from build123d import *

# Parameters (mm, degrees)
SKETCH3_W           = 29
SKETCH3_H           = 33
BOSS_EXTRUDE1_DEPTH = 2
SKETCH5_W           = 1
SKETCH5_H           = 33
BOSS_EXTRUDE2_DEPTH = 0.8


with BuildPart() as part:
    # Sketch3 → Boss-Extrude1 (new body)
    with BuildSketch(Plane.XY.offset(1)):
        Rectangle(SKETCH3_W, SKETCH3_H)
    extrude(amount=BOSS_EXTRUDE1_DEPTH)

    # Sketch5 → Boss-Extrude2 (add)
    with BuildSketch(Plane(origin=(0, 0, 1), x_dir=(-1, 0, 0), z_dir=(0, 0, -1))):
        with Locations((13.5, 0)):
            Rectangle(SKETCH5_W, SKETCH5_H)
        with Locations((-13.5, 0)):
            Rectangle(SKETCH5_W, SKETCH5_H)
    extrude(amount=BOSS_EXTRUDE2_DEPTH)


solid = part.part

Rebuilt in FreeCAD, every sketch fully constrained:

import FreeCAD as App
import Part
import Sketcher
from FreeCAD import Vector
Q = App.Units.Quantity

doc = App.newDocument("Part")
body = doc.addObject("PartDesign::Body", "Body")

sketch1 = body.newObject("Sketcher::SketchObject", "Sketch")
sketch1.AttachmentSupport = (doc.getObject("XY_Plane"), [""])
sketch1.MapMode = "FlatFace"
sketch1.AttachmentOffset = App.Placement(Vector(0, 0, 1), App.Rotation())
sketch1.addGeometry(Part.LineSegment(Vector(-14, 16, 0), Vector(-14, -16, 0)), False)
sketch1.addGeometry(Part.LineSegment(Vector(-14, -16, 0), Vector(14, -16, 0)), False)
sketch1.addGeometry(Part.LineSegment(Vector(14, -16, 0), Vector(14, 16, 0)), False)
sketch1.addGeometry(Part.LineSegment(Vector(14, 16, 0), Vector(-14, 16, 0)), False)
sketch1.addConstraint(Sketcher.Constraint("Coincident", 0, 2, 1, 1))
sketch1.addConstraint(Sketcher.Constraint("Coincident", 1, 2, 2, 1))
sketch1.addConstraint(Sketcher.Constraint("Coincident", 2, 2, 3, 1))
sketch1.addConstraint(Sketcher.Constraint("Coincident", 3, 2, 0, 1))
sketch1.addConstraint(Sketcher.Constraint("Vertical", 0))
sketch1.addConstraint(Sketcher.Constraint("Horizontal", 1))
sketch1.addConstraint(Sketcher.Constraint("Vertical", 2))
sketch1.addConstraint(Sketcher.Constraint("Horizontal", 3))
sketch1.addConstraint(Sketcher.Constraint("Symmetric", 0, 2, 2, 2, -1, 1))
sketch1.addConstraint(Sketcher.Constraint("DistanceX", 1, 1, 1, 2, Q("29 mm")))
sketch1.addConstraint(Sketcher.Constraint("DistanceY", 0, 2, 0, 1, Q("33 mm")))
pad1 = body.newObject("PartDesign::Pad", "Pad")
pad1.Profile = sketch1
pad1.Length = 2

sketch2 = body.newObject("Sketcher::SketchObject", "Sketch001")
sketch2.AttachmentSupport = (doc.getObject("XY_Plane"), [""])
sketch2.MapMode = "FlatFace"
sketch2.AttachmentOffset = App.Placement(Vector(0, 0, 1), App.Rotation())
sketch2.addGeometry(Part.LineSegment(Vector(-13, 16.5, 0), Vector(-13, -16.5, 0)), False)
sketch2.addGeometry(Part.LineSegment(Vector(-13, -16.5, 0), Vector(-14, -16.5, 0)), False)
sketch2.addGeometry(Part.LineSegment(Vector(-14, -16.5, 0), Vector(-14, 16.5, 0)), False)
sketch2.addGeometry(Part.LineSegment(Vector(-14, 16.5, 0), Vector(-13, 16.5, 0)), False)
sketch2.addGeometry(Part.LineSegment(Vector(14, 16.5, 0), Vector(14, -16.5, 0)), False)
sketch2.addGeometry(Part.LineSegment(Vector(14, -16.5, 0), Vector(13, -16.5, 0)), False)
sketch2.addGeometry(Part.LineSegment(Vector(13, -16.5, 0), Vector(13, 16.5, 0)), False)
sketch2.addGeometry(Part.LineSegment(Vector(13, 16.5, 0), Vector(14, 16.5, 0)), False)
sketch2.addConstraint(Sketcher.Constraint("Coincident", 0, 2, 1, 1))
sketch2.addConstraint(Sketcher.Constraint("Coincident", 1, 2, 2, 1))
sketch2.addConstraint(Sketcher.Constraint("Coincident", 2, 2, 3, 1))
sketch2.addConstraint(Sketcher.Constraint("Coincident", 3, 2, 0, 1))
sketch2.addConstraint(Sketcher.Constraint("Coincident", 4, 2, 5, 1))
sketch2.addConstraint(Sketcher.Constraint("Coincident", 5, 2, 6, 1))
sketch2.addConstraint(Sketcher.Constraint("Coincident", 6, 2, 7, 1))
sketch2.addConstraint(Sketcher.Constraint("Coincident", 7, 2, 4, 1))
sketch2.addConstraint(Sketcher.Constraint("Vertical", 0))
sketch2.addConstraint(Sketcher.Constraint("Horizontal", 1))
sketch2.addConstraint(Sketcher.Constraint("Vertical", 2))
sketch2.addConstraint(Sketcher.Constraint("Horizontal", 3))
sketch2.addConstraint(Sketcher.Constraint("Vertical", 4))
sketch2.addConstraint(Sketcher.Constraint("Horizontal", 5))
sketch2.addConstraint(Sketcher.Constraint("Vertical", 6))
sketch2.addConstraint(Sketcher.Constraint("Horizontal", 7))
sketch2.addConstraint(Sketcher.Constraint("Symmetric", 2, 2, 4, 2, -1, 1))
sketch2.addConstraint(Sketcher.Constraint("Symmetric", 0, 2, 6, 2, -1, 1))
sketch2.addConstraint(Sketcher.Constraint("Horizontal", 1, 2, 4, 2))
sketch2.addConstraint(Sketcher.Constraint("DistanceX", 1, 2, 1, 1, Q("1 mm")))
sketch2.addConstraint(Sketcher.Constraint("DistanceY", 0, 2, 0, 1, Q("33 mm")))
sketch2.addConstraint(Sketcher.Constraint("DistanceX", 0, 2, -1, 1, Q("13 mm")))
pad2 = body.newObject("PartDesign::Pad", "Pad001")
pad2.Profile = sketch2
pad2.Length = 0.8
pad2.Reversed = True

doc.recompute()
